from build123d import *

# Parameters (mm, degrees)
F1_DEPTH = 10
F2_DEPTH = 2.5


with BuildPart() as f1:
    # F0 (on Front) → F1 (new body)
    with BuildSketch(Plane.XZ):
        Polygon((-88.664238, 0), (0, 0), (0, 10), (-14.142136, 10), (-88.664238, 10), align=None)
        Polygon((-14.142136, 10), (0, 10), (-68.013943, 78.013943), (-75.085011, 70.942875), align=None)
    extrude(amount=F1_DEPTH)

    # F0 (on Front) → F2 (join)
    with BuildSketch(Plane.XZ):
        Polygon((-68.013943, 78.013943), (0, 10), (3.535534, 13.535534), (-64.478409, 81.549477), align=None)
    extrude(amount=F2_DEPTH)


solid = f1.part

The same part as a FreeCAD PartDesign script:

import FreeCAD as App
import Part
import Sketcher
Q = App.Units.Quantity


def add_polygon(sketch, points):
    """Adds a closed chain of lines whose ends are joined by coincident constraints."""
    first, n = sketch.GeometryCount, len(points)
    for a, b in zip(points, points[1:] + points[:1]):
        sketch.addGeometry(Part.LineSegment(App.Vector(*a, 0), App.Vector(*b, 0)), False)
    for i in range(n):
        sketch.addConstraint(Sketcher.Constraint("Coincident", first + i, 2, first + (i + 1) % n, 1))

doc = App.newDocument("Part")
body = doc.addObject("PartDesign::Body", "Body")

# Sketch on XZ plane
sketch1 = body.newObject("Sketcher::SketchObject", "Sketch")
sketch1.AttachmentSupport = (doc.getObject("XZ_Plane"), [""])
sketch1.MapMode = "FlatFace"
add_polygon(sketch1, [(-89, 0), (0, 0), (0, 10), (-68, 78), (-75, 71), (-14, 10), (-89, 10)])  # lines 0-6
sketch1.addConstraint([
    Sketcher.Constraint("Horizontal", 0),
    Sketcher.Constraint("Vertical", 1),
    Sketcher.Constraint("Horizontal", 5),
    Sketcher.Constraint("Vertical", 6),
    Sketcher.Constraint("Coincident", 0, 2, -1, 1),
    Sketcher.Constraint("Perpendicular", 2, 3),
    Sketcher.Constraint("Perpendicular", 3, 4),
    Sketcher.Constraint("Horizontal", 1, 2, 4, 2),
    Sketcher.Constraint("DistanceY", 1, 1, 1, 2, 10.0),
    Sketcher.Constraint("Angle", 2, Q("135 deg")),
    Sketcher.Constraint("Distance", 3, 10.0),
    Sketcher.Constraint("DistanceX", 5, 2, 5, 1, 74.522102),
    Sketcher.Constraint("Distance", 2, 96.186241),
])
pad1 = body.newObject("PartDesign::Pad", "Pad")
pad1.Profile = sketch1
pad1.Length = 10

# Sketch on XZ plane
sketch2 = body.newObject("Sketcher::SketchObject", "Sketch001")
sketch2.AttachmentSupport = (doc.getObject("XZ_Plane"), [""])
sketch2.MapMode = "FlatFace"
add_polygon(sketch2, [(-68, 78), (0, 10), (4, 14), (-64, 82)])  # lines 0-3
sketch2.addConstraint([
    Sketcher.Constraint("PointOnObject", 0, 2, -2),
    Sketcher.Constraint("Perpendicular", 0, 1),
    Sketcher.Constraint("Perpendicular", 1, 2),
    Sketcher.Constraint("Perpendicular", 2, 3),
    Sketcher.Constraint("Angle", 0, Q("-45 deg")),
    Sketcher.Constraint("Distance", 1, 5.0),
    Sketcher.Constraint("DistanceY", -1, 1, 0, 2, 10.0),
    Sketcher.Constraint("Distance", 0, 96.186241),
])
pad2 = body.newObject("PartDesign::Pad", "Pad001")
pad2.Profile = sketch2
pad2.Length = 2.5

doc.recompute()
